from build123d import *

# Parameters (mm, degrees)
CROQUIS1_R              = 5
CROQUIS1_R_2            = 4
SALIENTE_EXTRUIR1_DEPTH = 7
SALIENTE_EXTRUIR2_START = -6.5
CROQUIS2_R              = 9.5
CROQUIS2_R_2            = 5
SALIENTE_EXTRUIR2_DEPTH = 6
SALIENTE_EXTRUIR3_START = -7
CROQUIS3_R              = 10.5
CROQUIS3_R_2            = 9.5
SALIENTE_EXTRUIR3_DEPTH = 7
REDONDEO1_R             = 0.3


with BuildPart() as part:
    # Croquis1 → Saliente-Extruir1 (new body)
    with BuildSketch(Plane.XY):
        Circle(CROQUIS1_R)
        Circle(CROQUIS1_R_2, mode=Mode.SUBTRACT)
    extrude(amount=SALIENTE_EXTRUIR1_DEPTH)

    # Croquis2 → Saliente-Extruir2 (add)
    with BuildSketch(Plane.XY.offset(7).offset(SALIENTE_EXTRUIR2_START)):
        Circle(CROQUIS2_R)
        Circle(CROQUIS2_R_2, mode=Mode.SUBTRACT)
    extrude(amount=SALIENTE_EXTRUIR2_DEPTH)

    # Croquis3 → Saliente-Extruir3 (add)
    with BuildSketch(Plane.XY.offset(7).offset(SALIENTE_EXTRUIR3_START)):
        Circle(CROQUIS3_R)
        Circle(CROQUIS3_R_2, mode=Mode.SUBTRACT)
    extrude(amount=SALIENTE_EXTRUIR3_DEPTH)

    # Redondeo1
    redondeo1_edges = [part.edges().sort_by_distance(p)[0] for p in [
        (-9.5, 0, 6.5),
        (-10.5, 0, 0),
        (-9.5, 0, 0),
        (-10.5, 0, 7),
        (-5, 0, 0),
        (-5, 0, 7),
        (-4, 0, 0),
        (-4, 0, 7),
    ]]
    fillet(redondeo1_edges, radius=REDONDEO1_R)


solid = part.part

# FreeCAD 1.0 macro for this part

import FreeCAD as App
import Part
import Sketcher

V = App.Vector


def edges_at(feature, points):
    """Names of the edges that pass closest to the given points."""
    edges = feature.Shape.Edges
    near = lambda p: min(range(len(edges)), key=lambda i: edges[i].distToShape(Part.Vertex(*p))[0])
    return sorted({f"Edge{near(p) + 1}" for p in points})

doc = App.newDocument("Part")
body = doc.addObject("PartDesign::Body", "Body")

# Sketch on XY plane
sketch1 = body.newObject("Sketcher::SketchObject", "Sketch")
sketch1.AttachmentSupport = (doc.getObject("XY_Plane"), [""])
sketch1.MapMode = "FlatFace"
sketch1.addGeometry([
    Part.Circle(V(0, 0, 0), V(0, 0, 1), 5),
    Part.Circle(V(0, 0, 0), V(0, 0, 1), 4),
], False)
sketch1.addConstraint([
    Sketcher.Constraint("Coincident", 0, 3, -1, 1),
    Sketcher.Constraint("Coincident", 1, 3, -1, 1),
    Sketcher.Constraint("Diameter", 0, 10.0),
    Sketcher.Constraint("Diameter", 1, 8.0),
])
pad1 = body.newObject("PartDesign::Pad", "Pad")
pad1.Profile = sketch1
pad1.Length = 7

# Sketch on XY plane
sketch2 = body.newObject("Sketcher::SketchObject", "Sketch001")
sketch2.AttachmentSupport = (doc.getObject("XY_Plane"), [""])
sketch2.MapMode = "FlatFace"
sketch2.AttachmentOffset = App.Placement(V(0, 0, 0.5), App.Rotation())
sketch2.addGeometry([
    Part.Circle(V(0, 0, 0), V(0, 0, 1), 10),
    Part.Circle(V(0, 0, 0), V(0, 0, 1), 5),
], False)
sketch2.addConstraint([
    Sketcher.Constraint("Coincident", 0, 3, -1, 1),
    Sketcher.Constraint("Coincident", 1, 3, -1, 1),
    Sketcher.Constraint("Diameter", 0, 19.0),
    Sketcher.Constraint("Diameter", 1, 10.0),
])
pad2 = body.newObject("PartDesign::Pad", "Pad001")
pad2.Profile = sketch2
pad2.Length = 6

# Sketch on XY plane
sketch3 = body.newObject("Sketcher::SketchObject", "Sketch002")
sketch3.AttachmentSupport = (doc.getObject("XY_Plane"), [""])
sketch3.MapMode = "FlatFace"
sketch3.addGeometry([
    Part.Circle(V(0, 0, 0), V(0, 0, 1), 10),
    Part.Circle(V(0, 0, 0), V(0, 0, 1), 10),
], False)
sketch3.addConstraint([
    Sketcher.Constraint("Coincident", 0, 3, -1, 1),
    Sketcher.Constraint("Coincident", 1, 3, -1, 1),
    Sketcher.Constraint("Diameter", 0, 21.0),
    Sketcher.Constraint("Diameter", 1, 19.0),
])
pad3 = body.newObject("PartDesign::Pad", "Pad002")
pad3.Profile = sketch3
pad3.Length = 7
doc.recompute()

fillet = body.newObject("PartDesign::Fillet", "Fillet")
fillet.Base = (pad3, edges_at(pad3, [
    (-9.5, 0, 6.5),
    (-10.5, 0, 0),
    (-9.5, 0, 0),
    (-10.5, 0, 7),
    (-5, 0, 0),
    (-5, 0, 7),
    (-4, 0, 0),
    (-4, 0, 7),
]))
fillet.Radius = 0.3

doc.recompute()
